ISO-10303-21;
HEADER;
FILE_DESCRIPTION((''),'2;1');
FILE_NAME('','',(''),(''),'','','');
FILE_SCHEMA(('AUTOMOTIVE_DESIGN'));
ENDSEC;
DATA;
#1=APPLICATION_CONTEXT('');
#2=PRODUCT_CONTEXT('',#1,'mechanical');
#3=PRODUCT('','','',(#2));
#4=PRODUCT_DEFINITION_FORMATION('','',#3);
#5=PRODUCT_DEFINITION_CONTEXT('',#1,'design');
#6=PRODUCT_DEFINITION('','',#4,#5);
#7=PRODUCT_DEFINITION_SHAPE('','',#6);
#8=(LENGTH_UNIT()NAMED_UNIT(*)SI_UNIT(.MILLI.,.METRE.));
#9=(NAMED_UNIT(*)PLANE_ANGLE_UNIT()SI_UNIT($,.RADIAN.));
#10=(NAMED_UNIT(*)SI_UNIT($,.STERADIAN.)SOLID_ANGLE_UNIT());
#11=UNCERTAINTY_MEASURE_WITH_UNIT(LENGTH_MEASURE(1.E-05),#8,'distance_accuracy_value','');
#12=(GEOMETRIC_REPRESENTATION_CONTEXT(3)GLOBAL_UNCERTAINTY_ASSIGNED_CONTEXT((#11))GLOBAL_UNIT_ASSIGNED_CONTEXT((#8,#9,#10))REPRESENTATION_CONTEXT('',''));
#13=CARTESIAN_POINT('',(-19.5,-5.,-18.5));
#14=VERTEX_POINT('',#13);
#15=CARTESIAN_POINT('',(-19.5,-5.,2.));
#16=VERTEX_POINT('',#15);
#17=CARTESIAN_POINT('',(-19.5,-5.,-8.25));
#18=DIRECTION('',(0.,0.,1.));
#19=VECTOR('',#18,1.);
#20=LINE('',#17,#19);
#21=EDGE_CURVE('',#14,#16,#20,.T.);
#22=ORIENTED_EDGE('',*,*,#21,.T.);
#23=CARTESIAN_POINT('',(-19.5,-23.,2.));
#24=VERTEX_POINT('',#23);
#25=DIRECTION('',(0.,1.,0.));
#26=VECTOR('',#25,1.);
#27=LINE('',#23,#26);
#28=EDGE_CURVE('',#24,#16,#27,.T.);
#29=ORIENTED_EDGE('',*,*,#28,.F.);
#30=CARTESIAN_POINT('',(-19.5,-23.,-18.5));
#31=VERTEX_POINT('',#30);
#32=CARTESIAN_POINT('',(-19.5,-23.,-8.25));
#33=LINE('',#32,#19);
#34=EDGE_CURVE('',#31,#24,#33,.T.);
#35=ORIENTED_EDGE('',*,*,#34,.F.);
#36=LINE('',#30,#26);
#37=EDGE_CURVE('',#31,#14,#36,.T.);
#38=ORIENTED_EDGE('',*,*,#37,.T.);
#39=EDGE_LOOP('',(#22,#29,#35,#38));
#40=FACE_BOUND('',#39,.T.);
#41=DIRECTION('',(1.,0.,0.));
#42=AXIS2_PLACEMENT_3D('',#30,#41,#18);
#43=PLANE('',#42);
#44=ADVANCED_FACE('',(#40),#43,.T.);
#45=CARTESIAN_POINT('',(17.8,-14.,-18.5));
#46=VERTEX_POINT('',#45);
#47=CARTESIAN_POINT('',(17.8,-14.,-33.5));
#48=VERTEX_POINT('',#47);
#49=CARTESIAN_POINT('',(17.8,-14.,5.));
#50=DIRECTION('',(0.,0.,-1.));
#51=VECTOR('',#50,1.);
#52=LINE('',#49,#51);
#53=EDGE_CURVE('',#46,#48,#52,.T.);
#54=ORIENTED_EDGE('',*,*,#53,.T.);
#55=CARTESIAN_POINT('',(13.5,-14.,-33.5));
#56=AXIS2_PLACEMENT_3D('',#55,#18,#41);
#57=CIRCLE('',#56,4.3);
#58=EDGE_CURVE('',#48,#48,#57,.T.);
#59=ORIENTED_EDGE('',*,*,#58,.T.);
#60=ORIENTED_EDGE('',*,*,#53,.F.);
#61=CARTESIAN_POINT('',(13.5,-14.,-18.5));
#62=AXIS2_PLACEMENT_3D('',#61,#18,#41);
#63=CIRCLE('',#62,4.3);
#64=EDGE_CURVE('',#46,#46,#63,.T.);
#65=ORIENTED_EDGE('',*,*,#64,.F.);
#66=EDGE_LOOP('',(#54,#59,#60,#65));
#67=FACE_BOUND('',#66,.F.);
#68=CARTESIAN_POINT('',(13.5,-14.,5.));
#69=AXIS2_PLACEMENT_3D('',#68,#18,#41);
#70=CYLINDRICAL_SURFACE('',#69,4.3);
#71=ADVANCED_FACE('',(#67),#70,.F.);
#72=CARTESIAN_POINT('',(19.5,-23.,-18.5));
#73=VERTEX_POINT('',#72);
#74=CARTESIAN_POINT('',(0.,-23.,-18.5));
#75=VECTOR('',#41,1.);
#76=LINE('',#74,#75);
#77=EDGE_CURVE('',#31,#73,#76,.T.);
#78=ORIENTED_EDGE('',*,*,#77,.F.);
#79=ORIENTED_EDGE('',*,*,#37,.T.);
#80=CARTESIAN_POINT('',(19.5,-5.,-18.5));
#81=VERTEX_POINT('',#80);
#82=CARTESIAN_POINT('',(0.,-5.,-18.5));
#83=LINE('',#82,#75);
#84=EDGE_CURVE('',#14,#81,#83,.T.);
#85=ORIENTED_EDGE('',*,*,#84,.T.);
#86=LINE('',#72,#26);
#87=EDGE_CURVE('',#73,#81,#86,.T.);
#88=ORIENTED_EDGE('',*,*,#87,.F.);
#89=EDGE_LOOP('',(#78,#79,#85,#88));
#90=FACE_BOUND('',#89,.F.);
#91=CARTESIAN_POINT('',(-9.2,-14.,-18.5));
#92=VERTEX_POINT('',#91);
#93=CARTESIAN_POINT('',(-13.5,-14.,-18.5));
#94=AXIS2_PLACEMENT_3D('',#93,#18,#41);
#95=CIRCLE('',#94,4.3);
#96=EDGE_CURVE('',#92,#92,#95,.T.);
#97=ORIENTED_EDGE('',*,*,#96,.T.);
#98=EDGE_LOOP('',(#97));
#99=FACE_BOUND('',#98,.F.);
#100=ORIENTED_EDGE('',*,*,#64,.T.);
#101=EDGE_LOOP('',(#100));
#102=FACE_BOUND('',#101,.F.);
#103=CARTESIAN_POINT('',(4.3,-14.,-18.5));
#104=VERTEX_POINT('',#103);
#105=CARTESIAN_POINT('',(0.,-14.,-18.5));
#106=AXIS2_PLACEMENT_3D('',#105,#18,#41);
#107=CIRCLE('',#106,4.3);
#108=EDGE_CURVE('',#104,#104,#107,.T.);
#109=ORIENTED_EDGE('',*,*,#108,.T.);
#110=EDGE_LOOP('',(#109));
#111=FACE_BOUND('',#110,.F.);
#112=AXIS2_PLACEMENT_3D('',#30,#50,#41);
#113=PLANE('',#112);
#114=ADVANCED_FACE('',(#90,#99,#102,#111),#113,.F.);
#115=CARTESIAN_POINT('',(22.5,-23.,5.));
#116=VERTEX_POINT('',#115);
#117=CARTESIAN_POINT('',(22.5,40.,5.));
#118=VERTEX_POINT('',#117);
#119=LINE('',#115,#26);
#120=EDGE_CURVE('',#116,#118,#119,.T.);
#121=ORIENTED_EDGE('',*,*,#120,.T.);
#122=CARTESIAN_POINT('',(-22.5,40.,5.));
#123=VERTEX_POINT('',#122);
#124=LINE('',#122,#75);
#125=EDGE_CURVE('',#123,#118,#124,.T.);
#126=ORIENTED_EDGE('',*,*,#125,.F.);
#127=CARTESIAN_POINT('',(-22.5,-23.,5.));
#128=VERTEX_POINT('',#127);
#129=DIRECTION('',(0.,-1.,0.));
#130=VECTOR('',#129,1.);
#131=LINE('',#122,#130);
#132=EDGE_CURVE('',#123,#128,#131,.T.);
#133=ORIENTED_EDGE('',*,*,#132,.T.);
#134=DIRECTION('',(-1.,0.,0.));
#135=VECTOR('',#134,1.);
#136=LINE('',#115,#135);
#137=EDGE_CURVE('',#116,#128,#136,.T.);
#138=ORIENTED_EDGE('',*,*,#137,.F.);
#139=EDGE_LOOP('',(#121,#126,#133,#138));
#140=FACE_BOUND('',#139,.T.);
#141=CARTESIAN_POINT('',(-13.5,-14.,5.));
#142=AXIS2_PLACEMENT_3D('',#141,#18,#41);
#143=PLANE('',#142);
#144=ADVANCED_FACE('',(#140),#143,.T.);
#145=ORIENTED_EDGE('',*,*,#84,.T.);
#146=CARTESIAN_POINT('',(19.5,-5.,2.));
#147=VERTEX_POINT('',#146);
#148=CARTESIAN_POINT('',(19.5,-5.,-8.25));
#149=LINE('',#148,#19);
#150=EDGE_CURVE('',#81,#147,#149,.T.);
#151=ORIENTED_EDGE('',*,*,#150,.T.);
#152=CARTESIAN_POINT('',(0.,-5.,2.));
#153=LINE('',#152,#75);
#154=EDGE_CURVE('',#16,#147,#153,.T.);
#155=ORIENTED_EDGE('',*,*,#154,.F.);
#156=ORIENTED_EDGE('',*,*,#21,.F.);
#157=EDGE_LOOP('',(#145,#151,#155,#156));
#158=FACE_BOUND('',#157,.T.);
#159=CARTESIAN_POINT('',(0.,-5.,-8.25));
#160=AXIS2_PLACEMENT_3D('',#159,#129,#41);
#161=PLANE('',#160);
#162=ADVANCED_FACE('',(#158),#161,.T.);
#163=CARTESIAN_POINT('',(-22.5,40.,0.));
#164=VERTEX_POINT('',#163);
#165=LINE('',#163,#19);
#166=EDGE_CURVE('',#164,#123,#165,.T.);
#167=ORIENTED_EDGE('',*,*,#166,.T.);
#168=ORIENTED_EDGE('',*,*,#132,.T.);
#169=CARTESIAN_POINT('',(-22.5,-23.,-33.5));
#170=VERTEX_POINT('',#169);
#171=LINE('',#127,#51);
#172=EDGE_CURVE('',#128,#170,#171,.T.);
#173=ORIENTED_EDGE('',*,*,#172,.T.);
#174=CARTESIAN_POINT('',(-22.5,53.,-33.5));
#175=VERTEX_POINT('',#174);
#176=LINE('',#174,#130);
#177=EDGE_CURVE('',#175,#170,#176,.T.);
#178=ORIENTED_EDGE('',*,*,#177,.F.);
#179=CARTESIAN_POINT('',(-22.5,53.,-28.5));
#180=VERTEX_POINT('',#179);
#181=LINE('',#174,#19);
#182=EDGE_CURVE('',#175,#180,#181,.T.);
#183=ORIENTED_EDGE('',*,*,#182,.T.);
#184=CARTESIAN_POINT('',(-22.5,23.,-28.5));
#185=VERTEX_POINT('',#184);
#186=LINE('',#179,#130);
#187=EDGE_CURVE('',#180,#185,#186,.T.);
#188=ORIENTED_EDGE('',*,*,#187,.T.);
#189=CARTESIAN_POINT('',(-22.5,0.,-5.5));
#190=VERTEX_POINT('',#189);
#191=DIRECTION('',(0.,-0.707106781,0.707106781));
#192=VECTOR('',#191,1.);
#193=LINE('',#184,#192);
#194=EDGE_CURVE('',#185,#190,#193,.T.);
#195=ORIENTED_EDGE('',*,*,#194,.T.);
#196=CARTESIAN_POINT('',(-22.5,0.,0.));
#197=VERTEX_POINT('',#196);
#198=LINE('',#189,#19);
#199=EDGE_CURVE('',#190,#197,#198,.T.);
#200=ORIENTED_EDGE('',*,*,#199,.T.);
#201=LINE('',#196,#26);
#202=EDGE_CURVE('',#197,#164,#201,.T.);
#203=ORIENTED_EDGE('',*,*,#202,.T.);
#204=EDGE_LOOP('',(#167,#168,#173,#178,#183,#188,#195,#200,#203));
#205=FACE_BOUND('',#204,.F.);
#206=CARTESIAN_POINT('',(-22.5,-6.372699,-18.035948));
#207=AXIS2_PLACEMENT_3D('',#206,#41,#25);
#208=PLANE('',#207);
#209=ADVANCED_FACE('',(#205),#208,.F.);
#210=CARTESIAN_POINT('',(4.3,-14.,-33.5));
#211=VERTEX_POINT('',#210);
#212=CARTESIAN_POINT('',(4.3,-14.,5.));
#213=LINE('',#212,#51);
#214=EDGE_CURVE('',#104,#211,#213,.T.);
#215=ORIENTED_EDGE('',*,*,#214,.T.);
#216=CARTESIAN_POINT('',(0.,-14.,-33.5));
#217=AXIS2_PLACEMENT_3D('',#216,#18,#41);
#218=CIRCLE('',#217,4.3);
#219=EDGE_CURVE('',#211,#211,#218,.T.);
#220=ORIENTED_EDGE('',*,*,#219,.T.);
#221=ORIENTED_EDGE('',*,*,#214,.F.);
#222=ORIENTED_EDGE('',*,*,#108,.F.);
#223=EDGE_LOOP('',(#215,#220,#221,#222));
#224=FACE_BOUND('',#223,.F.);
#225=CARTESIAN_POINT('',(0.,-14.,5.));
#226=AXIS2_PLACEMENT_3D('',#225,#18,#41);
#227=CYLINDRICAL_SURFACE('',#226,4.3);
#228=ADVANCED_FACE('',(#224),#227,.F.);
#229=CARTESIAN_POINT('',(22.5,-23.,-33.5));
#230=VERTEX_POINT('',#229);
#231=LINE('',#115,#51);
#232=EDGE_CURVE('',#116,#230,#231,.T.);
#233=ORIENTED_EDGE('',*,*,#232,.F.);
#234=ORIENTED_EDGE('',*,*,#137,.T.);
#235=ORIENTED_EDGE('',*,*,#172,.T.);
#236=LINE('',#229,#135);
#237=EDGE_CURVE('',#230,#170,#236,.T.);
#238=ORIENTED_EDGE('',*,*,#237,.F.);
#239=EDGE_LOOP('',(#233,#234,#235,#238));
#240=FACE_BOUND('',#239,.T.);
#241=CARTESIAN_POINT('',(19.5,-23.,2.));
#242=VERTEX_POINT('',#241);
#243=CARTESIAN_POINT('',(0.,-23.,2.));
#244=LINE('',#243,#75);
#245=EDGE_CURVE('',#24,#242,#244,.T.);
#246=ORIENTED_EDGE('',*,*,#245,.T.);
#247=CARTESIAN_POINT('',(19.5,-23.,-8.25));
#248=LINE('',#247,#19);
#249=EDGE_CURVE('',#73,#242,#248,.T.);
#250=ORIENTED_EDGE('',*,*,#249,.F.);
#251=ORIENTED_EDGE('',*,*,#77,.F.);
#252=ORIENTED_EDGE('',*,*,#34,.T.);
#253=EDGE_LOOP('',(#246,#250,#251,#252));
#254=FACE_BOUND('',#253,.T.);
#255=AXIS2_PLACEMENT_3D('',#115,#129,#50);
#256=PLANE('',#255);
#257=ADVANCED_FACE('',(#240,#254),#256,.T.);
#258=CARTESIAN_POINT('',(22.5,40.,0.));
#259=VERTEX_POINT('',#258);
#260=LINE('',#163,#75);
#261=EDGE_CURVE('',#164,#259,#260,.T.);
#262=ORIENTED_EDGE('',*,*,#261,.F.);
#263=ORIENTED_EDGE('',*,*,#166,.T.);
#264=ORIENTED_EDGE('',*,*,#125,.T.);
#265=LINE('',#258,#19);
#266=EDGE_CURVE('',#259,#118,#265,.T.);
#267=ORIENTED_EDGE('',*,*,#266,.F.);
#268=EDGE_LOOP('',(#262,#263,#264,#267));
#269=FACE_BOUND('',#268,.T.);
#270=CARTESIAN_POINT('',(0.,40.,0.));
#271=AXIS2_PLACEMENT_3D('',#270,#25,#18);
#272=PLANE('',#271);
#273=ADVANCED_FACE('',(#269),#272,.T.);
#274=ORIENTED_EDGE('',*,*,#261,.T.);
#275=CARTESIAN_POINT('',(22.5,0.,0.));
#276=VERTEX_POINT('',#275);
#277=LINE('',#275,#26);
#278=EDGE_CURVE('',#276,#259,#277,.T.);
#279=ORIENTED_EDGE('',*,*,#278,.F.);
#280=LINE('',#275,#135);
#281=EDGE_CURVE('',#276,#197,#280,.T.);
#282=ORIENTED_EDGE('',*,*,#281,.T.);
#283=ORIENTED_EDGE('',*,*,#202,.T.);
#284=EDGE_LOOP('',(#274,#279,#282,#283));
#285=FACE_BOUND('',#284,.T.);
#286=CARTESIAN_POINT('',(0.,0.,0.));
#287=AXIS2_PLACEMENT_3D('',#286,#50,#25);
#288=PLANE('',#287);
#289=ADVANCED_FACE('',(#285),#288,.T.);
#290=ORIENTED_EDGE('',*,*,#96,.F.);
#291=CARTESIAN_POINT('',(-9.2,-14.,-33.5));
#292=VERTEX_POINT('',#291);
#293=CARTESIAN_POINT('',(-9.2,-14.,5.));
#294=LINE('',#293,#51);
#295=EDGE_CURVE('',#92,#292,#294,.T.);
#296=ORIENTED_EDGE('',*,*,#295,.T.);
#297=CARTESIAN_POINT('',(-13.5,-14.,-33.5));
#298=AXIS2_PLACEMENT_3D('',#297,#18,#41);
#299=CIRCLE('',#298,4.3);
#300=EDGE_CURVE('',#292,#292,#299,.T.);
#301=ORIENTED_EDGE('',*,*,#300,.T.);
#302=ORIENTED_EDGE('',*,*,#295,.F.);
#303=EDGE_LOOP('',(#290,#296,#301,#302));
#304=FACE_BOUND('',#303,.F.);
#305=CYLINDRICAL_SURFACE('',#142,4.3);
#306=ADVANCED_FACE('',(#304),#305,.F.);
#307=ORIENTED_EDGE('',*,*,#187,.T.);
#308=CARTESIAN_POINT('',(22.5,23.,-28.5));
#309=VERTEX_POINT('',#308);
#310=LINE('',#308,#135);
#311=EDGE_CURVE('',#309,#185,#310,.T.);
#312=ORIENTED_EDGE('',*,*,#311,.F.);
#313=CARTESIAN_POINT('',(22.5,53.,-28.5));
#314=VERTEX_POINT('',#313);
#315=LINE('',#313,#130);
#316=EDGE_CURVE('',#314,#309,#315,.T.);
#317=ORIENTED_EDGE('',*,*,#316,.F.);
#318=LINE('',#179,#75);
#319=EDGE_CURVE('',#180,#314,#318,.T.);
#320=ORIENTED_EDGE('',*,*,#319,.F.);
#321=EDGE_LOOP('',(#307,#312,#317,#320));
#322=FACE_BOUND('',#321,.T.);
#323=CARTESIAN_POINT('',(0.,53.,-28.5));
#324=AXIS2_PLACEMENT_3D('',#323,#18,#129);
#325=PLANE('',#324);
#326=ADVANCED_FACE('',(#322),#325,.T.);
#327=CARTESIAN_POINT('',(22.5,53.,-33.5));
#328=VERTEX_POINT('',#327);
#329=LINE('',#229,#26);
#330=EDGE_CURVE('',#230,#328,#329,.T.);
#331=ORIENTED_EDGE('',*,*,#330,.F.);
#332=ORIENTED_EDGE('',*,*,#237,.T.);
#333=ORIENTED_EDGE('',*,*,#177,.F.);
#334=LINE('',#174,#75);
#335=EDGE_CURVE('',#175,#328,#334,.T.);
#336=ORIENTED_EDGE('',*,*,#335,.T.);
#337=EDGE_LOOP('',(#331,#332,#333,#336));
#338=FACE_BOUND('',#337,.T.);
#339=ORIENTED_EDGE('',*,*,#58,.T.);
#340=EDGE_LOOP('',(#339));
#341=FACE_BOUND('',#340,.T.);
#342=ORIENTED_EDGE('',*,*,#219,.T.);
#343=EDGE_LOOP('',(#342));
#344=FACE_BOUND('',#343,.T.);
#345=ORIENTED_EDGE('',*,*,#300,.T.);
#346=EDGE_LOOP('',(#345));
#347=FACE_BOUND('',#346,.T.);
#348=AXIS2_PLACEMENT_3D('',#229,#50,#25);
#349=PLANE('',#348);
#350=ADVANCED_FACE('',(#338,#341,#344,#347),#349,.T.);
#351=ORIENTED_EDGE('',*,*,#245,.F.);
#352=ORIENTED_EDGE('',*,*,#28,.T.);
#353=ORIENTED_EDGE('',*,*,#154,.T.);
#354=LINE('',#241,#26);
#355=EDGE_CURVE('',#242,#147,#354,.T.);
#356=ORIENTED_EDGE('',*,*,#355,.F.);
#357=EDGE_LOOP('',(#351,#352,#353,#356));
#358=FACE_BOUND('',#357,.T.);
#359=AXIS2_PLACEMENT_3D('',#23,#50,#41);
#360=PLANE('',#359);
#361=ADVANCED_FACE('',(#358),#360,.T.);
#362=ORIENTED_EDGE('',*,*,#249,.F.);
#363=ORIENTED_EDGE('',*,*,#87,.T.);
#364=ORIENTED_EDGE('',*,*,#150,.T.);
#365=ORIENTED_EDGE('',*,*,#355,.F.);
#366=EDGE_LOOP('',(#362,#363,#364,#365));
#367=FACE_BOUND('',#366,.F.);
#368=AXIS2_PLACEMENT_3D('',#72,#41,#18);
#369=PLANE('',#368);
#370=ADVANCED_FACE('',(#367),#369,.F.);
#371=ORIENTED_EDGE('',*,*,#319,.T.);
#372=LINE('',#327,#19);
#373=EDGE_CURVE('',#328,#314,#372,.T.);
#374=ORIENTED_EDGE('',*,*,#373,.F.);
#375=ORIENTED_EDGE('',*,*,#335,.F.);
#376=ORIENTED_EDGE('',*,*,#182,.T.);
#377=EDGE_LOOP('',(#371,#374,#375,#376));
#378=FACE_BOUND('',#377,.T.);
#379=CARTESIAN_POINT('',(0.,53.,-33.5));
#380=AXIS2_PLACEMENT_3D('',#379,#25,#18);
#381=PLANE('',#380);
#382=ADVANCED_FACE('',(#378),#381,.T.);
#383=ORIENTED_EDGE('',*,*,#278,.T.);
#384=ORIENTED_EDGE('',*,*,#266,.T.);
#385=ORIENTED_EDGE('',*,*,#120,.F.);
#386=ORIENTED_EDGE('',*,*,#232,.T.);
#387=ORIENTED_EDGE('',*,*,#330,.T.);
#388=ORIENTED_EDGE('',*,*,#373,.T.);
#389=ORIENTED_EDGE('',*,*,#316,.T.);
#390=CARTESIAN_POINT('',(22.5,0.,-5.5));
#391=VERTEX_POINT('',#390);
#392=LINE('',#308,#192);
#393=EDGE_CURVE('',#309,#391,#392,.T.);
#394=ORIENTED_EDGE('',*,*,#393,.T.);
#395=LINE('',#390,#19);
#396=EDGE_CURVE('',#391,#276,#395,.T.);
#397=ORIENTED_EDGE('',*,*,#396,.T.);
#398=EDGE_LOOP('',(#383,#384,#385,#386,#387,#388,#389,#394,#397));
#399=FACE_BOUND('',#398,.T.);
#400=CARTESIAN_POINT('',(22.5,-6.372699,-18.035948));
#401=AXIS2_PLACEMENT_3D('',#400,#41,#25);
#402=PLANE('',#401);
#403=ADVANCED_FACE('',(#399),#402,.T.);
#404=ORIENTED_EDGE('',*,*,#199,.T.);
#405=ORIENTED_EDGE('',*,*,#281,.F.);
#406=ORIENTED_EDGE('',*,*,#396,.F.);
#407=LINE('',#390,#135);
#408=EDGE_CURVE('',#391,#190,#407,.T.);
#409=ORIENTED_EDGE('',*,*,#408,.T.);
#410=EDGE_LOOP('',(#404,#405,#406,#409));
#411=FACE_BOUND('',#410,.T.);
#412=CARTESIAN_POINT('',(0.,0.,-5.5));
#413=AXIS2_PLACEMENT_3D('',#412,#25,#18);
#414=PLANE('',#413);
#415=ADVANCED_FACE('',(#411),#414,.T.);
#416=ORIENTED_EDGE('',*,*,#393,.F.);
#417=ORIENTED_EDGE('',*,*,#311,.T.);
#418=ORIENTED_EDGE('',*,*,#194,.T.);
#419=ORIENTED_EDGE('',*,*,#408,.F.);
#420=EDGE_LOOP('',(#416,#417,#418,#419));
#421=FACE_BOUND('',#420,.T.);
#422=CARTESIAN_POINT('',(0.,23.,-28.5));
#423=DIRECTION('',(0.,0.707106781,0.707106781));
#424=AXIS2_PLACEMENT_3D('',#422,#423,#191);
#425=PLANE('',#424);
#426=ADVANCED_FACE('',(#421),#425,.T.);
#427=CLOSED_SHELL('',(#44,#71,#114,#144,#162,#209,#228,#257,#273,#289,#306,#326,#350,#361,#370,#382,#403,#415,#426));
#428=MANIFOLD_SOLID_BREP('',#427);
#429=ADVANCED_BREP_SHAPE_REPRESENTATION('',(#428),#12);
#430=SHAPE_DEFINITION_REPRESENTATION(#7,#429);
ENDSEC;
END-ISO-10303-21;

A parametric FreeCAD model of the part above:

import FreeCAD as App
import Part
import Sketcher

V = App.Vector
Q = App.Units.Quantity


def add_polygon(sketch, points):
    """Adds a closed chain of lines whose ends are joined by coincident constraints."""
    first, n = sketch.GeometryCount, len(points)
    for a, b in zip(points, points[1:] + points[:1]):
        sketch.addGeometry(Part.LineSegment(App.Vector(*a, 0), App.Vector(*b, 0)), False)
    for i in range(n):
        sketch.addConstraint(Sketcher.Constraint("Coincident", first + i, 2, first + (i + 1) % n, 1))

doc = App.newDocument("Part")
body = doc.addObject("PartDesign::Body", "Body")

# Sketch on YZ plane
sketch1 = body.newObject("Sketcher::SketchObject", "Sketch")
sketch1.AttachmentSupport = (doc.getObject("YZ_Plane"), [""])
sketch1.MapMode = "FlatFace"
add_polygon(sketch1, [(0, 0), (40, 0), (40, 5), (-5, 5), (-5, -8), (21, -34), (53, -34), (53, -28), (23, -28), (0, -6)])  # lines 0-9
sketch1.addConstraint([
    Sketcher.Constraint("Horizontal", 0),
    Sketcher.Constraint("Vertical", 1),
    Sketcher.Constraint("Horizontal", 2),
    Sketcher.Constraint("Vertical", 3),
    Sketcher.Constraint("Horizontal", 5),
    Sketcher.Constraint("Vertical", 6),
    Sketcher.Constraint("Horizontal", 7),
    Sketcher.Constraint("Vertical", 9),
    Sketcher.Constraint("Coincident", 9, 2, -1, 1),
    Sketcher.Constraint("Parallel", 4, 8),
    Sketcher.Constraint("Equal", 1, 6),
    Sketcher.Constraint("DistanceX", 0, 1, 0, 2, Q("40 mm")),
    Sketcher.Constraint("DistanceX", 2, 2, 2, 1, Q("45 mm")),
    Sketcher.Constraint("DistanceX", 7, 2, 7, 1, Q("30 mm")),
    Sketcher.Constraint("DistanceY", 1, 1, 1, 2, Q("5 mm")),
    Sketcher.Constraint("Angle", 4, Q("-45 deg")),
    Sketcher.Constraint("DistanceY", 9, 1, 9, 2, Q("5.5 mm")),
    Sketcher.Constraint("DistanceX", -1, 1, 5, 2, Q("53 mm")),
    Sketcher.Constraint("DistanceX", 5, 1, 5, 2, Q("32.071068 mm")),
])
pad1 = body.newObject("PartDesign::Pad", "Pad")
pad1.Profile = sketch1
pad1.Length = 45
pad1.Midplane = True

# Sketch on YZ plane
sketch2 = body.newObject("Sketcher::SketchObject", "Sketch001")
sketch2.AttachmentSupport = (doc.getObject("YZ_Plane"), [""])
sketch2.MapMode = "FlatFace"
sketch2.AttachmentOffset = App.Placement(V(0, 0, 22.5), App.Rotation())
add_polygon(sketch2, [(-5, -8), (-5, 5), (-23, 5), (-23, -34), (21, -34)])  # lines 0-4
sketch2.addConstraint([
    Sketcher.Constraint("Vertical", 0),
    Sketcher.Constraint("Horizontal", 1),
    Sketcher.Constraint("Vertical", 2),
    Sketcher.Constraint("Horizontal", 3),
    Sketcher.Constraint("DistanceX", 1, 2, 1, 1, Q("18 mm")),
    Sketcher.Constraint("Angle", 4, Q("135 deg")),
    Sketcher.Constraint("DistanceY", 2, 2, 2, 1, Q("38.5 mm")),
    Sketcher.Constraint("DistanceX", 0, 2, -1, 1, Q("5 mm")),
    Sketcher.Constraint("DistanceY", -1, 1, 0, 2, Q("5 mm")),
    Sketcher.Constraint("DistanceX", 3, 1, 3, 2, Q("43.928932 mm")),
])
pad2 = body.newObject("PartDesign::Pad", "Pad001")
pad2.Profile = sketch2
pad2.Length = 45
pad2.Reversed = True

# Sketch on XY plane
sketch3 = body.newObject("Sketcher::SketchObject", "Sketch002")
sketch3.AttachmentSupport = (doc.getObject("XY_Plane"), [""])
sketch3.MapMode = "FlatFace"
sketch3.AttachmentOffset = App.Placement(V(0, 0, 5), App.Rotation())
sketch3.addGeometry([
    Part.Circle(V(0, -14, 0), V(0, 0, 1), 4.3),
    Part.Circle(V(13.5, -14, 0), V(0, 0, 1), 4.3),
    Part.Circle(V(-13.5, -14, 0), V(0, 0, 1), 4.3),
], False)
sketch3.addConstraint([
    Sketcher.Constraint("Equal", 0, 1),
    Sketcher.Constraint("Equal", 1, 2),
    Sketcher.Constraint("Symmetric", 1, 3, 2, 3, -2),
    Sketcher.Constraint("PointOnObject", 0, 3, -2),
    Sketcher.Constraint("Horizontal", 0, 3, 1, 3),
    Sketcher.Constraint("Diameter", 0, Q("8.6 mm")),
    Sketcher.Constraint("DistanceY", 0, 3, -1, 1, Q("14 mm")),
    Sketcher.Constraint("DistanceX", 2, 3, 1, 3, Q("27 mm")),
])
pocket1 = body.newObject("PartDesign::Pocket", "Pocket")
pocket1.Profile = sketch3
pocket1.Type = "ThroughAll"

# Sketch on XZ plane
sketch4 = body.newObject("Sketcher::SketchObject", "Sketch003")
sketch4.AttachmentSupport = (doc.getObject("XZ_Plane"), [""])
sketch4.MapMode = "FlatFace"
sketch4.AttachmentOffset = App.Placement(V(0, 0, 23), App.Rotation())
add_polygon(sketch4, [(-20, 2), (-20, -18), (20, -18), (20, 2)])  # lines 0-3
sketch4.addConstraint([
    Sketcher.Constraint("Vertical", 0),
    Sketcher.Constraint("Horizontal", 1),
    Sketcher.Constraint("Vertical", 2),
    Sketcher.Constraint("Horizontal", 3),
    Sketcher.Constraint("DistanceX", 1, 1, 1, 2, Q("39 mm")),
    Sketcher.Constraint("DistanceY", 0, 2, 0, 1, Q("20.5 mm")),
    Sketcher.Constraint("DistanceY", -1, 1, 2, 2, Q("2 mm")),
    Sketcher.Constraint("DistanceX", 0, 2, -1, 1, Q("19.5 mm")),
])
pocket2 = body.newObject("PartDesign::Pocket", "Pocket001")
pocket2.Profile = sketch4
pocket2.Length = 18

# Sketch on XZ plane
sketch5 = body.newObject("Sketcher::SketchObject", "Sketch004")
sketch5.AttachmentSupport = (doc.getObject("XZ_Plane"), [""])
sketch5.MapMode = "FlatFace"
sketch5.AttachmentOffset = App.Placement(V(0, 0, 23), App.Rotation())
add_polygon(sketch5, [(-20, 2), (-20, -18), (20, -18), (20, 2)])  # lines 0-3
sketch5.addConstraint([
    Sketcher.Constraint("Vertical", 0),
    Sketcher.Constraint("Horizontal", 1),
    Sketcher.Constraint("Vertical", 2),
    Sketcher.Constraint("Horizontal", 3),
    Sketcher.Constraint("DistanceX", 1, 1, 1, 2, Q("39 mm")),
    Sketcher.Constraint("DistanceY", 0, 2, 0, 1, Q("20.5 mm")),
    Sketcher.Constraint("DistanceY", -1, 1, 2, 2, Q("2 mm")),
    Sketcher.Constraint("DistanceX", 0, 2, -1, 1, Q("19.5 mm")),
])
pocket3 = body.newObject("PartDesign::Pocket", "Pocket002")
pocket3.Profile = sketch5
pocket3.Length = 18

# Sketch on XY plane
sketch6 = body.newObject("Sketcher::SketchObject", "Sketch005")
sketch6.AttachmentSupport = (doc.getObject("XY_Plane"), [""])
sketch6.MapMode = "FlatFace"
sketch6.AttachmentOffset = App.Placement(V(0, 0, 5), App.Rotation())
sketch6.addGeometry([
    Part.Circle(V(-13.5, -14, 0), V(0, 0, 1), 4.3),
    Part.Circle(V(0, -14, 0), V(0, 0, 1), 4.3),
    Part.Circle(V(13.5, -14, 0), V(0, 0, 1), 4.3),
], False)
sketch6.addConstraint([
    Sketcher.Constraint("Equal", 0, 1),
    Sketcher.Constraint("Equal", 1, 2),
    Sketcher.Constraint("Symmetric", 0, 3, 2, 3, -2),
    Sketcher.Constraint("PointOnObject", 1, 3, -2),
    Sketcher.Constraint("Horizontal", 0, 3, 1, 3),
    Sketcher.Constraint("Diameter", 0, Q("8.6 mm")),
    Sketcher.Constraint("DistanceY", 0, 3, -1, 1, Q("14 mm")),
    Sketcher.Constraint("DistanceX", 0, 3, 2, 3, Q("27 mm")),
])
pad3 = body.newObject("PartDesign::Pad", "Pad002")
pad3.Profile = sketch6
pad3.Length = 3
pad3.Reversed = True

doc.recompute()
